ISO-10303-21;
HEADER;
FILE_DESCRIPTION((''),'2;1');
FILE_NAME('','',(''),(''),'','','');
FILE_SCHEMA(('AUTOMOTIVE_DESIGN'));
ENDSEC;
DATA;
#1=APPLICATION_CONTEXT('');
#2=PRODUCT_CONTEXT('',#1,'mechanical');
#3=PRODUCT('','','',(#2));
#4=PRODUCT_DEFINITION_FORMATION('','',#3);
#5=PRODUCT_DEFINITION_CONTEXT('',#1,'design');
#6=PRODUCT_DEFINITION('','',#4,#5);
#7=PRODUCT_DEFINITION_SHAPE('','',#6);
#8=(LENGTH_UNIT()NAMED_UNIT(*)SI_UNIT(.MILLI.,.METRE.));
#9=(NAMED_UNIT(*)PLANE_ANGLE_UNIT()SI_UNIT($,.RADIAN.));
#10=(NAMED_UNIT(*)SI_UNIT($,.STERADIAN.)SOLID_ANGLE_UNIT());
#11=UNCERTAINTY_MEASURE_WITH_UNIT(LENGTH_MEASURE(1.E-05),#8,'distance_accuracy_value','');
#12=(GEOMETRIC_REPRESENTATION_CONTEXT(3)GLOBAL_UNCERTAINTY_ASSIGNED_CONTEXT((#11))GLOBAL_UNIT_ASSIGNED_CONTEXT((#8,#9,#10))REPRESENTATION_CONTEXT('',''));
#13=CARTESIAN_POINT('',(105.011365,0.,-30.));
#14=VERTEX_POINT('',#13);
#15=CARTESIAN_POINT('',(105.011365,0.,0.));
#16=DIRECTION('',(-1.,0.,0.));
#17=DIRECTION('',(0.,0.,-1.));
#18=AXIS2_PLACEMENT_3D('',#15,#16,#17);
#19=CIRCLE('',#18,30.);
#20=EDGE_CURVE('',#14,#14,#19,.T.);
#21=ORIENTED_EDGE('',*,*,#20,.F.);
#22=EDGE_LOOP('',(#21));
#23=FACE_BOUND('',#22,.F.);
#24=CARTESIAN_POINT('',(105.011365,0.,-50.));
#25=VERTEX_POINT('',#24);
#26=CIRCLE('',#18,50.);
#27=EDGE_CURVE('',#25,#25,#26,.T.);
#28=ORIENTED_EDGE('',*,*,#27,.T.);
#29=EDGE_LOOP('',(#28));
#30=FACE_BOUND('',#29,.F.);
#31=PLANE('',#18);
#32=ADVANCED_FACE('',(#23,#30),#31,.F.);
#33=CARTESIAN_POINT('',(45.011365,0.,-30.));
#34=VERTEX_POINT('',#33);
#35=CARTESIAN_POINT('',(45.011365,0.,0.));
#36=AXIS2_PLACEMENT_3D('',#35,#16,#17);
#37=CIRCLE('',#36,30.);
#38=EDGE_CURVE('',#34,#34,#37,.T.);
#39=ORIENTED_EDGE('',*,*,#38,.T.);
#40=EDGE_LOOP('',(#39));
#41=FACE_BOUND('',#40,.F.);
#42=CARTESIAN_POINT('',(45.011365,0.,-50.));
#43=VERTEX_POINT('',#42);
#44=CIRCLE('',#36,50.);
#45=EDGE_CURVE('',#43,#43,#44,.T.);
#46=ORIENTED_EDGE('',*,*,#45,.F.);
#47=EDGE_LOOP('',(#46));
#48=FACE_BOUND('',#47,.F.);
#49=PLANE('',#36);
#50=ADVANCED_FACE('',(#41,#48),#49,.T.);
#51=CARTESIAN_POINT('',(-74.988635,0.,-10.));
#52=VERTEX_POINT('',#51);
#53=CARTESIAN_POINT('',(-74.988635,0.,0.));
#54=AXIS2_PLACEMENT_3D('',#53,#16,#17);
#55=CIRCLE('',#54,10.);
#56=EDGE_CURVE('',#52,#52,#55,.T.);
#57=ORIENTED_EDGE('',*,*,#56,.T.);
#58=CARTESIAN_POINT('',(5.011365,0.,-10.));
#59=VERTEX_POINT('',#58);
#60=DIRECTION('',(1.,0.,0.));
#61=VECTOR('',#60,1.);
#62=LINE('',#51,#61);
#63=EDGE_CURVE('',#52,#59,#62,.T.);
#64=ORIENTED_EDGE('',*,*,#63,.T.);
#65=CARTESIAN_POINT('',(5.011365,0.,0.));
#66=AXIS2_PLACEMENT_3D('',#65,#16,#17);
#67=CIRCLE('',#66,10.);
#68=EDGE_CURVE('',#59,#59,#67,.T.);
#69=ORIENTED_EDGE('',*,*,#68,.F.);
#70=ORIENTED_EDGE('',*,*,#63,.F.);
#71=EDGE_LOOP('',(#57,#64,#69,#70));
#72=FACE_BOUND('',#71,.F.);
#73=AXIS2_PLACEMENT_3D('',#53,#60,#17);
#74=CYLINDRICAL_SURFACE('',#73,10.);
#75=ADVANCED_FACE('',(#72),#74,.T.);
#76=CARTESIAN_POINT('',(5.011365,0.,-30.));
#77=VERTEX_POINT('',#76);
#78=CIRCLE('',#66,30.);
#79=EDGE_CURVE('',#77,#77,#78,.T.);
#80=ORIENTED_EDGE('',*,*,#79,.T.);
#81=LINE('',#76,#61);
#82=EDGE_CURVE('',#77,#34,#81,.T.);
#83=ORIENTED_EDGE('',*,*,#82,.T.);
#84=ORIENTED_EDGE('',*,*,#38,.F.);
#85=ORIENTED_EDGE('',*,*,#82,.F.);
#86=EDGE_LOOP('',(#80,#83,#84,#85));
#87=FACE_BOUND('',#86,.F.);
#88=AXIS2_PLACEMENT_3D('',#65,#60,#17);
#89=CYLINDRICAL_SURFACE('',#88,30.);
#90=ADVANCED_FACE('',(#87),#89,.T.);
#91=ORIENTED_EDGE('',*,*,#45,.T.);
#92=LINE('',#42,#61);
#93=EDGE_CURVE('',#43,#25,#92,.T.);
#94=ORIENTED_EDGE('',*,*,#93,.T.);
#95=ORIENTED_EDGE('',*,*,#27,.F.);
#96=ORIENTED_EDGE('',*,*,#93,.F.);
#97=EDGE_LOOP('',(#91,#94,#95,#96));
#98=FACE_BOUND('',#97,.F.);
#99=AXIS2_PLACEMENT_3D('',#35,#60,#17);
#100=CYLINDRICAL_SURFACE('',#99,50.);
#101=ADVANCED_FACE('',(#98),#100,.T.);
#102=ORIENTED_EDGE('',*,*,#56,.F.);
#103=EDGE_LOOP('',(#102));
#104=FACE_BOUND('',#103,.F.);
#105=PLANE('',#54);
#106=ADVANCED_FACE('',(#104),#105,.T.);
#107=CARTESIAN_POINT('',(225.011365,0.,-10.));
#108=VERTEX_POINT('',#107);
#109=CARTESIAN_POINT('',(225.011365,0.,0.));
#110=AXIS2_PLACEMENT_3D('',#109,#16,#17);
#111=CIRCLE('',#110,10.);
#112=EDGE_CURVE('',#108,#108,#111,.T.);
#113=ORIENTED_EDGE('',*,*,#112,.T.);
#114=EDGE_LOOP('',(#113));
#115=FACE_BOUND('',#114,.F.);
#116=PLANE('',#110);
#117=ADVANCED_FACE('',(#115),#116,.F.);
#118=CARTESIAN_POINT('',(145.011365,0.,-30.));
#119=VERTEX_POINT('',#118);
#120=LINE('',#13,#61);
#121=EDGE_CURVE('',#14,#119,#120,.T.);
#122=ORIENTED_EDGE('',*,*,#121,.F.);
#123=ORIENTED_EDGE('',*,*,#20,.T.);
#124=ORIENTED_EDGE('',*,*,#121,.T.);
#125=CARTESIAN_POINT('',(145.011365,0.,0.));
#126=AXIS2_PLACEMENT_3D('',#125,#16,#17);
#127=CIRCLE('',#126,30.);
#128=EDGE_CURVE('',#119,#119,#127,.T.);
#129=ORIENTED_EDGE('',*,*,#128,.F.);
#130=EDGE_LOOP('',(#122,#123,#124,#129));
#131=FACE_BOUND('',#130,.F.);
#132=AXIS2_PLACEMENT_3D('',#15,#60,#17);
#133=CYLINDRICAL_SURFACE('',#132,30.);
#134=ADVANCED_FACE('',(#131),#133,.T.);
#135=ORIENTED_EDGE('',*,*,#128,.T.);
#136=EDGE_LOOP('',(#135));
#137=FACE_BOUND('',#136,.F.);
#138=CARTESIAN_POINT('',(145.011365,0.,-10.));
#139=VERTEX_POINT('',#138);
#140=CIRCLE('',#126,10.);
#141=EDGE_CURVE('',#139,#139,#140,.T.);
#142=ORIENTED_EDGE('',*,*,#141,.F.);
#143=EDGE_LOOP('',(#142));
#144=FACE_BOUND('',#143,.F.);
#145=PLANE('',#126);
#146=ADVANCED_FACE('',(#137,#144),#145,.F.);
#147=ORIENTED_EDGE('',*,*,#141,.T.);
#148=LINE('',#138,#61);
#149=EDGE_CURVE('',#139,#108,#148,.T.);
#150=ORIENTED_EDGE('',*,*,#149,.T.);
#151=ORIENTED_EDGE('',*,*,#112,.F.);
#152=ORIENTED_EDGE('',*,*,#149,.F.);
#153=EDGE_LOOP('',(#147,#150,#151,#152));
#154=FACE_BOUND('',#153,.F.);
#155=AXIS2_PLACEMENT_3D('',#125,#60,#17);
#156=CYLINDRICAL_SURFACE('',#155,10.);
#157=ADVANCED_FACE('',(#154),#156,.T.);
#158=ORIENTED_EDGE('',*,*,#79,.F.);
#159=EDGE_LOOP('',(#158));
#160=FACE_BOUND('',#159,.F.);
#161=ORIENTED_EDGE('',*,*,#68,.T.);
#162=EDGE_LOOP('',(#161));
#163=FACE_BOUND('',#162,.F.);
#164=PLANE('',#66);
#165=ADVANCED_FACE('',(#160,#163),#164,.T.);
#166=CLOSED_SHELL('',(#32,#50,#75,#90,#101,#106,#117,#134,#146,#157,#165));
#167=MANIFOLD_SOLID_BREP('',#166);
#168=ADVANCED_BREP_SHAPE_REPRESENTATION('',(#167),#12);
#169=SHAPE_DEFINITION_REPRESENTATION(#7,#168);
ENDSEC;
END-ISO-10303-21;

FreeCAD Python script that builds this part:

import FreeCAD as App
import Part
import Sketcher

V = App.Vector
Q = App.Units.Quantity

doc = App.newDocument("Part")
body = doc.addObject("PartDesign::Body", "Body")

# Sketch on XZ plane
sketch1 = body.newObject("Sketcher::SketchObject", "Sketch")
sketch1.AttachmentSupport = (doc.getObject("XZ_Plane"), [""])
sketch1.MapMode = "FlatFace"
sketch1.addGeometry(Part.LineSegment(V(45, 30, 0), V(45, 50, 0)), False)
sketch1.addGeometry(Part.LineSegment(V(45, 50, 0), V(105, 50, 0)), False)
sketch1.addGeometry(Part.LineSegment(V(105, 50, 0), V(105, 30, 0)), False)
sketch1.addGeometry(Part.LineSegment(V(105, 30, 0), V(145, 30, 0)), False)
sketch1.addGeometry(Part.LineSegment(V(145, 30, 0), V(145, 10, 0)), False)
sketch1.addGeometry(Part.LineSegment(V(145, 10, 0), V(225, 10, 0)), False)
sketch1.addGeometry(Part.LineSegment(V(225, 10, 0), V(225, 0, 0)), False)
sketch1.addGeometry(Part.LineSegment(V(225, 0, 0), V(-75, 0, 0)), False)
sketch1.addGeometry(Part.LineSegment(V(-75, 0, 0), V(-75, 10, 0)), False)
sketch1.addGeometry(Part.LineSegment(V(-75, 10, 0), V(5, 10, 0)), False)
sketch1.addGeometry(Part.LineSegment(V(5, 10, 0), V(5, 30, 0)), False)
sketch1.addGeometry(Part.LineSegment(V(5, 30, 0), V(45, 30, 0)), False)
sketch1.addConstraint(Sketcher.Constraint("Coincident", 0, 2, 1, 1))
sketch1.addConstraint(Sketcher.Constraint("Coincident", 1, 2, 2, 1))
sketch1.addConstraint(Sketcher.Constraint("Coincident", 2, 2, 3, 1))
sketch1.addConstraint(Sketcher.Constraint("Coincident", 3, 2, 4, 1))
sketch1.addConstraint(Sketcher.Constraint("Coincident", 4, 2, 5, 1))
sketch1.addConstraint(Sketcher.Constraint("Coincident", 5, 2, 6, 1))
sketch1.addConstraint(Sketcher.Constraint("Coincident", 6, 2, 7, 1))
sketch1.addConstraint(Sketcher.Constraint("Coincident", 7, 2, 8, 1))
sketch1.addConstraint(Sketcher.Constraint("Coincident", 8, 2, 9, 1))
sketch1.addConstraint(Sketcher.Constraint("Coincident", 9, 2, 10, 1))
sketch1.addConstraint(Sketcher.Constraint("Coincident", 10, 2, 11, 1))
sketch1.addConstraint(Sketcher.Constraint("Coincident", 11, 2, 0, 1))
sketch1.addConstraint(Sketcher.Constraint("Vertical", 0))
sketch1.addConstraint(Sketcher.Constraint("Horizontal", 1))
sketch1.addConstraint(Sketcher.Constraint("Vertical", 2))
sketch1.addConstraint(Sketcher.Constraint("Horizontal", 3))
sketch1.addConstraint(Sketcher.Constraint("Vertical", 4))
sketch1.addConstraint(Sketcher.Constraint("Horizontal", 5))
sketch1.addConstraint(Sketcher.Constraint("Vertical", 6))
sketch1.addConstraint(Sketcher.Constraint("Horizontal", 7))
sketch1.addConstraint(Sketcher.Constraint("Vertical", 8))
sketch1.addConstraint(Sketcher.Constraint("Horizontal", 9))
sketch1.addConstraint(Sketcher.Constraint("Vertical", 10))
sketch1.addConstraint(Sketcher.Constraint("Horizontal", 11))
sketch1.addConstraint(Sketcher.Constraint("PointOnObject", 6, 2, -1))
sketch1.addConstraint(Sketcher.Constraint("Horizontal", 5, 2, 8, 2))
sketch1.addConstraint(Sketcher.Constraint("Horizontal", 3, 2, 10, 2))
sketch1.addConstraint(Sketcher.Constraint("Equal", 5, 9))
sketch1.addConstraint(Sketcher.Constraint("Equal", 3, 11))
sketch1.addConstraint(Sketcher.Constraint("Equal", 2, 4))
sketch1.addConstraint(Sketcher.Constraint("DistanceX", 1, 1, 1, 2, Q("60 mm")))
sketch1.addConstraint(Sketcher.Constraint("DistanceX", 3, 1, 3, 2, Q("40 mm")))
sketch1.addConstraint(Sketcher.Constraint("DistanceX", 5, 1, 5, 2, Q("80 mm")))
sketch1.addConstraint(Sketcher.Constraint("DistanceY", 0, 1, 0, 2, Q("20 mm")))
sketch1.addConstraint(Sketcher.Constraint("DistanceY", 6, 2, 6, 1, Q("10 mm")))
sketch1.addConstraint(Sketcher.Constraint("DistanceX", -1, 1, 0, 2, Q("45.011365 mm")))
revolution = body.newObject("PartDesign::Revolution", "Revolution")
revolution.Profile = sketch1
revolution.ReferenceAxis = (sketch1, ["H_Axis"])
revolution.Angle = 360

doc.recompute()
